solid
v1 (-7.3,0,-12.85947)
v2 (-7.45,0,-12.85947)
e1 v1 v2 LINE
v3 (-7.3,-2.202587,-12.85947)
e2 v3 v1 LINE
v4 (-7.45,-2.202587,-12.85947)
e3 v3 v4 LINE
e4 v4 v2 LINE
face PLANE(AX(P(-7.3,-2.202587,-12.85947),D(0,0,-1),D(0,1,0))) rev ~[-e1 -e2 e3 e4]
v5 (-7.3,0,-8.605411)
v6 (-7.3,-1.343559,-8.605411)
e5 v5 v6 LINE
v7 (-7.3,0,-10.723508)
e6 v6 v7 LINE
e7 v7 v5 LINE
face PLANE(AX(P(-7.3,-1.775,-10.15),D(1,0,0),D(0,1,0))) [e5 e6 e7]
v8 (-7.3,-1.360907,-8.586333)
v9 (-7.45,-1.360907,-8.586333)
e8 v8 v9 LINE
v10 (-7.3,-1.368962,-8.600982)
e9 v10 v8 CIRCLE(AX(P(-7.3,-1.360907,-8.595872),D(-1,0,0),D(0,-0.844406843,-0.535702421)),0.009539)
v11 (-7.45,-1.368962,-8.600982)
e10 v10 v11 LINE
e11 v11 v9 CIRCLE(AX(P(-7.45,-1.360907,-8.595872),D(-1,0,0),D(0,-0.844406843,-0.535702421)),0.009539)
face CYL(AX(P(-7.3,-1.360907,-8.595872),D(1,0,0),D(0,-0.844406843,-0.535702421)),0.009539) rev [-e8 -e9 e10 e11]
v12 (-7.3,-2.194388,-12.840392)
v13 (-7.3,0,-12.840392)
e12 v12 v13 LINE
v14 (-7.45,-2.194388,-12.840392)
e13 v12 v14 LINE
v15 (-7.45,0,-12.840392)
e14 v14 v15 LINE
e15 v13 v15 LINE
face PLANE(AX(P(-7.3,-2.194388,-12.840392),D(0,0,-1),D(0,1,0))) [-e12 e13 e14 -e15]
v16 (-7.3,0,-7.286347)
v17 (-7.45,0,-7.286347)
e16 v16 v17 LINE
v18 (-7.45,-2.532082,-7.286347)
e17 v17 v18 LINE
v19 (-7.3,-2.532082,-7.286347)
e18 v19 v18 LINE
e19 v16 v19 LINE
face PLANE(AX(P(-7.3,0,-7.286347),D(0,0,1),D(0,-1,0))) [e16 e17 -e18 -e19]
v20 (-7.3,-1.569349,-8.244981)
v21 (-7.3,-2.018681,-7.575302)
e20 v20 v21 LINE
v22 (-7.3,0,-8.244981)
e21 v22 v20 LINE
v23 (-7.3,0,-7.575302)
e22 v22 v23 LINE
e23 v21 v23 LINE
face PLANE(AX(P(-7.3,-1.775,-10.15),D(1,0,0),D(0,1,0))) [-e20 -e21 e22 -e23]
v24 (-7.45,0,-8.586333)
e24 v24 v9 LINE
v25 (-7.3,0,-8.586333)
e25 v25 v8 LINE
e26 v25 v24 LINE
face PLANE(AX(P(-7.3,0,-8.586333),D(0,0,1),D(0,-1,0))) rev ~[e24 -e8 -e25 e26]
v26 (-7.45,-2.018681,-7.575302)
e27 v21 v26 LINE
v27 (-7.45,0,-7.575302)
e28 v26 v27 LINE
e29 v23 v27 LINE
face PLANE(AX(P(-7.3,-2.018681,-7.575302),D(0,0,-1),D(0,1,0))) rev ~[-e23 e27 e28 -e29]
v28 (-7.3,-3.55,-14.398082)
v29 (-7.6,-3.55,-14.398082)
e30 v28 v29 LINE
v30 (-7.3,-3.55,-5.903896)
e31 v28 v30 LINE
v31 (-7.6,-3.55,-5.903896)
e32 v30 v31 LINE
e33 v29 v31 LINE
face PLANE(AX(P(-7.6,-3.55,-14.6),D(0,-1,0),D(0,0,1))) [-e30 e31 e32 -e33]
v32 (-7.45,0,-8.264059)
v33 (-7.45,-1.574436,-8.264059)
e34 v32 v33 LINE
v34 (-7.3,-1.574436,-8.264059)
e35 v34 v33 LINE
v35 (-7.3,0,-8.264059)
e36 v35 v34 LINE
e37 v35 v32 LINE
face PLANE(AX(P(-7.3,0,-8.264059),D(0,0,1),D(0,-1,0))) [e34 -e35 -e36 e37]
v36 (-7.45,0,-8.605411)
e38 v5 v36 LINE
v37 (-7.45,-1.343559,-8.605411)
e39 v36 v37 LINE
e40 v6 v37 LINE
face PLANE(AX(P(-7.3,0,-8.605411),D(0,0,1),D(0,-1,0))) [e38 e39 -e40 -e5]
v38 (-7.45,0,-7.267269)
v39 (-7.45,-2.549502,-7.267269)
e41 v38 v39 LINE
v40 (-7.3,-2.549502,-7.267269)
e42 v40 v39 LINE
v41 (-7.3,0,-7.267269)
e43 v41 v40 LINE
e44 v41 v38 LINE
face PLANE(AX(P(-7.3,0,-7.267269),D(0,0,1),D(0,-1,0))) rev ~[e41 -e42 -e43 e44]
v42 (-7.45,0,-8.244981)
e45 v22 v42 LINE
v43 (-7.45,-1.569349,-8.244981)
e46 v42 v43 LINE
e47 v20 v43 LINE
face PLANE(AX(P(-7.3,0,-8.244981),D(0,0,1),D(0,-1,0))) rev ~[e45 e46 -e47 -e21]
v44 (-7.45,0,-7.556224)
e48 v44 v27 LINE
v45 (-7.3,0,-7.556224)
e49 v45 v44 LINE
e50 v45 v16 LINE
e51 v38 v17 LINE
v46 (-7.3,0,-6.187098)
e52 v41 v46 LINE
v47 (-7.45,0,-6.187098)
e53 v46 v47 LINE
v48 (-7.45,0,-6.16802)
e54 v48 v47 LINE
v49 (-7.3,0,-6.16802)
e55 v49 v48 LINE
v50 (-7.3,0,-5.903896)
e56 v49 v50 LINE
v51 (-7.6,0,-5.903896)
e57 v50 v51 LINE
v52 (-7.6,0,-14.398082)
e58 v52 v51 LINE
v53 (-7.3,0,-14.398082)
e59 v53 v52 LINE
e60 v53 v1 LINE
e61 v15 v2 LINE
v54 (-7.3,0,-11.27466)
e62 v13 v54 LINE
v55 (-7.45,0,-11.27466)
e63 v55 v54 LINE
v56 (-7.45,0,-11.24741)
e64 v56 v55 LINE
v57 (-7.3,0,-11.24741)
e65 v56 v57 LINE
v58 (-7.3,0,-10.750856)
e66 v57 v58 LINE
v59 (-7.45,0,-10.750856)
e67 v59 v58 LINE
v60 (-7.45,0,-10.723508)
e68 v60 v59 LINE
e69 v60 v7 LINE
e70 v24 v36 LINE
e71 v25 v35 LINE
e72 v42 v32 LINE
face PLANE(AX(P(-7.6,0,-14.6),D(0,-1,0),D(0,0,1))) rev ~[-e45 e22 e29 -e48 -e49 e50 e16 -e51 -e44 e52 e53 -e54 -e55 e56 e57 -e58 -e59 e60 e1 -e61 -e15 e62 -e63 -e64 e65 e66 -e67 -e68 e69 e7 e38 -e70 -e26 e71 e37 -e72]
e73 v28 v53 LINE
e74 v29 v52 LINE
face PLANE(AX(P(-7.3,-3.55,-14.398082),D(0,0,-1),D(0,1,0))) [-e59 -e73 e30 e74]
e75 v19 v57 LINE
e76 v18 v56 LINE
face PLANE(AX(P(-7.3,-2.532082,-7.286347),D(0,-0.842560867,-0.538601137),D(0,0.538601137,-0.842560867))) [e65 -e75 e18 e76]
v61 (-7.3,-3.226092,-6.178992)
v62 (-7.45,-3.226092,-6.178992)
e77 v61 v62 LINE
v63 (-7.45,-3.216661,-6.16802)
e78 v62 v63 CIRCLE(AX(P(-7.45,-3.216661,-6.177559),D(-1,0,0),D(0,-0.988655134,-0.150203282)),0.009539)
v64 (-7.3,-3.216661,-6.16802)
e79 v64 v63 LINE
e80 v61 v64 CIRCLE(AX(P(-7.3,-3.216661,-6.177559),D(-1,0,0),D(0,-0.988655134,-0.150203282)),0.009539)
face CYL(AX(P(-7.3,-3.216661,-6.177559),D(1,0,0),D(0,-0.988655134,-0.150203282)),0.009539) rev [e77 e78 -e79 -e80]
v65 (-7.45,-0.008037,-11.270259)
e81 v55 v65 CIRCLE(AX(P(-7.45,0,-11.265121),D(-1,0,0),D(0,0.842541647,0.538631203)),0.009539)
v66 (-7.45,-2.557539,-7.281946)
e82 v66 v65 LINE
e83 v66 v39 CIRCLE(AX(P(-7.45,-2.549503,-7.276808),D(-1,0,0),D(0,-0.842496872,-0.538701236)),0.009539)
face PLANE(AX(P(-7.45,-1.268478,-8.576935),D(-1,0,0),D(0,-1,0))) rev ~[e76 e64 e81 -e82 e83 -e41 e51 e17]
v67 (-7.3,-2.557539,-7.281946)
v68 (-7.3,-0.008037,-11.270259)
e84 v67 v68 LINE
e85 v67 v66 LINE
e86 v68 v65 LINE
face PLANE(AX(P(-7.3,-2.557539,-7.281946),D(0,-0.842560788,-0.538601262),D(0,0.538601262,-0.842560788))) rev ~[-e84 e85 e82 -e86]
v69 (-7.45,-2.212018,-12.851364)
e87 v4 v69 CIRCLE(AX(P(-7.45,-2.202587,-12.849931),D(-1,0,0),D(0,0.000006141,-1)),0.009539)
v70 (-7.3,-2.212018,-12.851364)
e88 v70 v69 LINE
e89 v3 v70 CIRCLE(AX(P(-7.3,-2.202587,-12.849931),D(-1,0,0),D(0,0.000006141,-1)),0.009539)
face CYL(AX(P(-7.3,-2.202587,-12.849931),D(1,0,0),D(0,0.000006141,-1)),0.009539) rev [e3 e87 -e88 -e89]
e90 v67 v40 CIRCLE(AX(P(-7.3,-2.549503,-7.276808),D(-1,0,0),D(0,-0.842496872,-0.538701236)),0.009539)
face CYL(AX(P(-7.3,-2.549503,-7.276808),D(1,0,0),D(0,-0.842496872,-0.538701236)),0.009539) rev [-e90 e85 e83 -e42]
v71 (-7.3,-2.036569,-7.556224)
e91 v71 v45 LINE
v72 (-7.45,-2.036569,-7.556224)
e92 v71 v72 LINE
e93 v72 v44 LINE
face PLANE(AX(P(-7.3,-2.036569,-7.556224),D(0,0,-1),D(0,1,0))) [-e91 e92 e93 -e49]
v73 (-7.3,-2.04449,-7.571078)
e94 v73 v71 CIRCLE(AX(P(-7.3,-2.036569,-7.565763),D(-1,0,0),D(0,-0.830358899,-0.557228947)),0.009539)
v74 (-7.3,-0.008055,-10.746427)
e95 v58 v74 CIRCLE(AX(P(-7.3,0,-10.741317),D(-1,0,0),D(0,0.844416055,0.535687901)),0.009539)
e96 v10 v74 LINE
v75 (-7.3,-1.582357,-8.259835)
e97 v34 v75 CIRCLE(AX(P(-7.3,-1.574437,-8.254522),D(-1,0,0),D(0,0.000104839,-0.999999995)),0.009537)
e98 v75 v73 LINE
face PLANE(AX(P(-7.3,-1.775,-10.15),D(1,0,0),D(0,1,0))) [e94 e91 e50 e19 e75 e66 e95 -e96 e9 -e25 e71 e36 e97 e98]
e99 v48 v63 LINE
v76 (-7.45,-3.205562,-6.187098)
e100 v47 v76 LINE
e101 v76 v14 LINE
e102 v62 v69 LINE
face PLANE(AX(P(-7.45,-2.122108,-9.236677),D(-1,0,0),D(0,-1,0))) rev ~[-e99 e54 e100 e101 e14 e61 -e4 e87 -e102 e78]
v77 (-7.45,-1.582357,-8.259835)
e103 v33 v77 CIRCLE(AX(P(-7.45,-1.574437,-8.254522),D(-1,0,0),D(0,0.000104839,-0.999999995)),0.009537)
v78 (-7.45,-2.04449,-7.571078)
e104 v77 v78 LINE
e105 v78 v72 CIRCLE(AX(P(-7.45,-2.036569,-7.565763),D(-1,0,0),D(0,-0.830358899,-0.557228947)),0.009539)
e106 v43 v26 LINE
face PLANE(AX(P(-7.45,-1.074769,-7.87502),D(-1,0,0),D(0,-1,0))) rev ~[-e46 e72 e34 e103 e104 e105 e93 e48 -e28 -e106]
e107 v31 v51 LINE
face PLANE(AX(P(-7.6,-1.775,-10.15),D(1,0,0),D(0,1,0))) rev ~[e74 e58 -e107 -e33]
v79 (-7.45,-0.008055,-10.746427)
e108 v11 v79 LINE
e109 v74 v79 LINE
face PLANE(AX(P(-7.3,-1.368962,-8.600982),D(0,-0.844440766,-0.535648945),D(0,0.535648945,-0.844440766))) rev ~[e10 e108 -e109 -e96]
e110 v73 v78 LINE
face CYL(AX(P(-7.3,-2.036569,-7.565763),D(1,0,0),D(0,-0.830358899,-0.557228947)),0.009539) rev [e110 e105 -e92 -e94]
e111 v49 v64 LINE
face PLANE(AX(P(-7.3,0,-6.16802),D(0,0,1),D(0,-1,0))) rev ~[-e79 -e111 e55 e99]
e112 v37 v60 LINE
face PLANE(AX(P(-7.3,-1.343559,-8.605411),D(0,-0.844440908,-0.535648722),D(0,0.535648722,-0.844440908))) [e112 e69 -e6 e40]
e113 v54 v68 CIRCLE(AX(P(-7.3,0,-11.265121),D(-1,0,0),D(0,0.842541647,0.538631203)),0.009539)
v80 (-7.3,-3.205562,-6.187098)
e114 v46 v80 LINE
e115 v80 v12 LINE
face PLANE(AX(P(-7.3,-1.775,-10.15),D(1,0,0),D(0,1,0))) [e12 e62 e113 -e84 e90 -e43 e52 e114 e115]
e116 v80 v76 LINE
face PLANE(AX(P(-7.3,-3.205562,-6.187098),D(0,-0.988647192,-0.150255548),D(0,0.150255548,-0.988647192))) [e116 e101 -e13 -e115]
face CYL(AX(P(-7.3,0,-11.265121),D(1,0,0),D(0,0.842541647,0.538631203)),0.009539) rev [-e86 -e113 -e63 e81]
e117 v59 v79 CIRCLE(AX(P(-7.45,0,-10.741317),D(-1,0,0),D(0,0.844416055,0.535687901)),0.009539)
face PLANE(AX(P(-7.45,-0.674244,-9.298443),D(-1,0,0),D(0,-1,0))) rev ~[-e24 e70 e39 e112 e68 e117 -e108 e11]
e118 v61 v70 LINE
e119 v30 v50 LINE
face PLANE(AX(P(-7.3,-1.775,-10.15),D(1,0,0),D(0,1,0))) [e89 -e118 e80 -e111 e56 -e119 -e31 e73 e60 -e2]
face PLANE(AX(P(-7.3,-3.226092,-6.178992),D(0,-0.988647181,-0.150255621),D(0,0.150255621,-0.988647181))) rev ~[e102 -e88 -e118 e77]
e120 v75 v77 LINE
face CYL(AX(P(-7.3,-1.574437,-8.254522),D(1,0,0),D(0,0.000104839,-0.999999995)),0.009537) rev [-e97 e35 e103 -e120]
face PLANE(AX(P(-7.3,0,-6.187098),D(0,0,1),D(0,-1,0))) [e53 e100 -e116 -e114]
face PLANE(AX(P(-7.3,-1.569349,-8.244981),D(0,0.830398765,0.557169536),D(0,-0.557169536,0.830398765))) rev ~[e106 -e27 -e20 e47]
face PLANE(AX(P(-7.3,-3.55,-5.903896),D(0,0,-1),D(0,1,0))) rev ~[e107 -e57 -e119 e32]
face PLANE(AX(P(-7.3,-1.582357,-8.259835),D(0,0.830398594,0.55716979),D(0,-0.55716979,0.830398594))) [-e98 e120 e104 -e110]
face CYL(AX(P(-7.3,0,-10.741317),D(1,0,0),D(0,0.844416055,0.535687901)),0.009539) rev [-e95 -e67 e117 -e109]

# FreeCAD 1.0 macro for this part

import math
import FreeCAD as App
import Part
import Sketcher


def add_polygon(sketch, points):
    """Adds a closed chain of lines whose ends are joined by coincident constraints."""
    first, n = sketch.GeometryCount, len(points)
    for a, b in zip(points, points[1:] + points[:1]):
        sketch.addGeometry(Part.LineSegment(App.Vector(*a, 0), App.Vector(*b, 0)), False)
    for i in range(n):
        sketch.addConstraint(Sketcher.Constraint("Coincident", first + i, 2, first + (i + 1) % n, 1))

doc = App.newDocument("Part")
body = doc.addObject("PartDesign::Body", "Body")

# Sketch on YZ plane
sketch1 = body.newObject("Sketcher::SketchObject", "Sketch")
sketch1.AttachmentSupport = (doc.getObject("YZ_Plane"), [""])
sketch1.MapMode = "FlatFace"
sketch1.AttachmentOffset = App.Placement(App.Vector(0, 0, -7.6), App.Rotation())
add_polygon(sketch1, [(-3.55, -5.7), (-3.55, -14.6), (0, -14.6), (0, -5.7)])  # lines 0-3
sketch1.addConstraint([
    Sketcher.Constraint("Vertical", 0),
    Sketcher.Constraint("Horizontal", 1),
    Sketcher.Constraint("Vertical", 2),
    Sketcher.Constraint("Horizontal", 3),
    Sketcher.Constraint("PointOnObject", 1, 2, -2),
    Sketcher.Constraint("DistanceY", 0, 2, 0, 1, 8.9),
    Sketcher.Constraint("DistanceX", 1, 1, 1, 2, 3.55),
    Sketcher.Constraint("DistanceY", 0, 2, -1, 1, 14.6),
])
pad1 = body.newObject("PartDesign::Pad", "Pad")
pad1.Profile = sketch1
pad1.Length = 0.3

# Sketch on YZ plane
sketch2 = body.newObject("Sketcher::SketchObject", "Sketch001")
sketch2.AttachmentSupport = (doc.getObject("YZ_Plane"), [""])
sketch2.MapMode = "FlatFace"
sketch2.AttachmentOffset = App.Placement(App.Vector(0, 0, -7.3), App.Rotation())
sketch2.addGeometry([
    Part.ArcOfCircle(Part.Circle(App.Vector(0, -7.565763, 0), App.Vector(0, 0, 1), 0.009539), math.radians(-90), math.radians(90)),  # 0
    Part.LineSegment(App.Vector(0, -7.556224, 0), App.Vector(-2.036569, -7.556224, 0)),  # 1
    Part.ArcOfCircle(Part.Circle(App.Vector(-2.036569, -7.565763, 0), App.Vector(0, 0, 1), 0.009539), math.radians(89.997459), math.radians(213.864374)),  # 2
    Part.LineSegment(App.Vector(-2.04449, -7.571078, 0), App.Vector(-1.582357, -8.259835, 0)),  # 3
    Part.ArcOfCircle(Part.Circle(App.Vector(-1.574437, -8.254522, 0), App.Vector(0, 0, 1), 0.009537), math.radians(-146.144974), math.radians(-89.993992)),  # 4
    Part.LineSegment(App.Vector(-1.574436, -8.264059, 0), App.Vector(0, -8.264059, 0)),  # 5
    Part.ArcOfCircle(Part.Circle(App.Vector(0, -8.25452, 0), App.Vector(0, 0, 1), 0.009539), math.radians(-90), math.radians(90)),  # 6
    Part.LineSegment(App.Vector(0, -8.244981, 0), App.Vector(-1.569349, -8.244981, 0)),  # 7
    Part.LineSegment(App.Vector(-1.569349, -8.244981, 0), App.Vector(-2.018681, -7.575302, 0)),  # 8
    Part.LineSegment(App.Vector(-2.018681, -7.575302, 0), App.Vector(0, -7.575302, 0)),  # 9
    Part.ArcOfCircle(Part.Circle(App.Vector(0, -12.849931, 0), App.Vector(0, 0, 1), 0.009539), math.radians(-90), math.radians(90)),  # 10
    Part.LineSegment(App.Vector(0, -12.840392, 0), App.Vector(-2.194388, -12.840392, 0)),  # 11
    Part.LineSegment(App.Vector(-2.194388, -12.840392, 0), App.Vector(-3.205562, -6.187098, 0)),  # 12
    Part.LineSegment(App.Vector(-3.205562, -6.187098, 0), App.Vector(0, -6.187098, 0)),  # 13
    Part.ArcOfCircle(Part.Circle(App.Vector(0, -6.177559, 0), App.Vector(0, 0, 1), 0.009539), math.radians(-90), math.radians(90)),  # 14
    Part.LineSegment(App.Vector(0, -6.16802, 0), App.Vector(-3.216661, -6.16802, 0)),  # 15
    Part.ArcOfCircle(Part.Circle(App.Vector(-3.216661, -6.177559, 0), App.Vector(0, 0, 1), 0.009539), math.radians(89.999778), math.radians(188.638709)),  # 16
    Part.LineSegment(App.Vector(-3.226092, -6.178992, 0), App.Vector(-2.212018, -12.851364, 0)),  # 17
    Part.ArcOfCircle(Part.Circle(App.Vector(-2.202587, -12.849931, 0), App.Vector(0, 0, 1), 0.009539), math.radians(-171.358854), math.radians(-89.999646)),  # 18
    Part.LineSegment(App.Vector(-2.202587, -12.85947, 0), App.Vector(0, -12.85947, 0)),  # 19
    Part.LineSegment(App.Vector(0.008055, -10.736207, 0), App.Vector(-1.343559, -8.605411, 0)),  # 20
    Part.LineSegment(App.Vector(-1.343559, -8.605411, 0), App.Vector(0, -8.605411, 0)),  # 21
    Part.ArcOfCircle(Part.Circle(App.Vector(0, -8.595872, 0), App.Vector(0, 0, 1), 0.009539), math.radians(-90), math.radians(90)),  # 22
    Part.LineSegment(App.Vector(0, -8.586333, 0), App.Vector(-1.360907, -8.586333, 0)),  # 23
    Part.ArcOfCircle(Part.Circle(App.Vector(-1.360907, -8.595872, 0), App.Vector(0, 0, 1), 0.009539), math.radians(89.998564), math.radians(212.391562)),  # 24
    Part.LineSegment(App.Vector(-1.368962, -8.600982, 0), App.Vector(-0.008055, -10.746427, 0)),  # 25
    Part.ArcOfCircle(Part.Circle(App.Vector(0, -10.741317, 0), App.Vector(0, 0, 1), 0.009539), math.radians(-147.609425), math.radians(32.390575)),  # 26
    Part.LineSegment(App.Vector(0.008037, -11.259983, 0), App.Vector(-2.532082, -7.286347, 0)),  # 27
    Part.LineSegment(App.Vector(-2.532082, -7.286347, 0), App.Vector(0, -7.286347, 0)),  # 28
    Part.ArcOfCircle(Part.Circle(App.Vector(0, -7.276808, 0), App.Vector(0, 0, 1), 0.009539), math.radians(-90), math.radians(90)),  # 29
    Part.LineSegment(App.Vector(0, -7.267269, 0), App.Vector(-2.549502, -7.267269, 0)),  # 30
    Part.ArcOfCircle(Part.Circle(App.Vector(-2.549503, -7.276808, 0), App.Vector(0, 0, 1), 0.009539), math.radians(89.995255), math.radians(212.59527)),  # 31
    Part.LineSegment(App.Vector(-2.557539, -7.281946, 0), App.Vector(-0.008037, -11.270259, 0)),  # 32
    Part.ArcOfCircle(Part.Circle(App.Vector(0, -11.265121, 0), App.Vector(0, 0, 1), 0.009539), math.radians(-147.409493), math.radians(32.590507)),  # 33
], False)
sketch2.addConstraint([
    Sketcher.Constraint("Tangent", 0, 2, 1, 1),
    Sketcher.Constraint("Coincident", 1, 2, 2, 1),
    Sketcher.Constraint("Coincident", 2, 2, 3, 1),
    Sketcher.Constraint("Coincident", 3, 2, 4, 1),
    Sketcher.Constraint("Coincident", 4, 2, 5, 1),
    Sketcher.Constraint("Tangent", 5, 2, 6, 1),
    Sketcher.Constraint("Tangent", 6, 2, 7, 1),
    Sketcher.Constraint("Coincident", 7, 2, 8, 1),
    Sketcher.Constraint("Coincident", 8, 2, 9, 1),
    Sketcher.Constraint("Tangent", 9, 2, 0, 1),
    Sketcher.Constraint("Tangent", 10, 2, 11, 1),
    Sketcher.Constraint("Coincident", 11, 2, 12, 1),
    Sketcher.Constraint("Coincident", 12, 2, 13, 1),
    Sketcher.Constraint("Tangent", 13, 2, 14, 1),
    Sketcher.Constraint("Tangent", 14, 2, 15, 1),
    Sketcher.Constraint("Coincident", 15, 2, 16, 1),
    Sketcher.Constraint("Coincident", 16, 2, 17, 1),
    Sketcher.Constraint("Coincident", 17, 2, 18, 1),
    Sketcher.Constraint("Coincident", 18, 2, 19, 1),
    Sketcher.Constraint("Tangent", 19, 2, 10, 1),
    Sketcher.Constraint("Coincident", 20, 2, 21, 1),
    Sketcher.Constraint("Tangent", 21, 2, 22, 1),
    Sketcher.Constraint("Tangent", 22, 2, 23, 1),
    Sketcher.Constraint("Coincident", 23, 2, 24, 1),
    Sketcher.Constraint("Coincident", 24, 2, 25, 1),
    Sketcher.Constraint("Coincident", 25, 2, 26, 1),
    Sketcher.Constraint("Coincident", 26, 2, 20, 1),
    Sketcher.Constraint("Coincident", 27, 2, 28, 1),
    Sketcher.Constraint("Tangent", 28, 2, 29, 1),
    Sketcher.Constraint("Tangent", 29, 2, 30, 1),
    Sketcher.Constraint("Coincident", 30, 2, 31, 1),
    Sketcher.Constraint("Coincident", 31, 2, 32, 1),
    Sketcher.Constraint("Coincident", 32, 2, 33, 1),
    Sketcher.Constraint("Coincident", 33, 2, 27, 1),
    Sketcher.Constraint("Horizontal", 1),
    Sketcher.Constraint("Horizontal", 5),
    Sketcher.Constraint("Horizontal", 7),
    Sketcher.Constraint("Horizontal", 9),
    Sketcher.Constraint("Horizontal", 11),
    Sketcher.Constraint("Horizontal", 13),
    Sketcher.Constraint("Horizontal", 15),
    Sketcher.Constraint("Horizontal", 19),
    Sketcher.Constraint("Horizontal", 21),
    Sketcher.Constraint("Horizontal", 23),
    Sketcher.Constraint("Horizontal", 28),
    Sketcher.Constraint("Horizontal", 30),
    Sketcher.Constraint("Equal", 0, 2),
    Sketcher.Constraint("Equal", 2, 4),
    Sketcher.Constraint("Equal", 2, 6),
    Sketcher.Constraint("Equal", 6, 10),
    Sketcher.Constraint("Equal", 10, 14),
    Sketcher.Constraint("Equal", 14, 16),
    Sketcher.Constraint("Equal", 16, 18),
    Sketcher.Constraint("Equal", 18, 22),
    Sketcher.Constraint("Equal", 22, 24),
    Sketcher.Constraint("Equal", 24, 26),
    Sketcher.Constraint("Equal", 26, 29),
    Sketcher.Constraint("Equal", 29, 31),
    Sketcher.Constraint("Equal", 31, 33),
    Sketcher.Constraint("PointOnObject", 0, 3, -2),
    Sketcher.Constraint("PointOnObject", 6, 3, -2),
    Sketcher.Constraint("PointOnObject", 10, 3, -2),
    Sketcher.Constraint("PointOnObject", 14, 3, -2),
    Sketcher.Constraint("PointOnObject", 22, 3, -2),
    Sketcher.Constraint("PointOnObject", 26, 3, -2),
    Sketcher.Constraint("PointOnObject", 29, 3, -2),
    Sketcher.Constraint("PointOnObject", 33, 3, -2),
    Sketcher.Constraint("Parallel", 3, 8),
    Sketcher.Constraint("Parallel", 12, 17),
    Sketcher.Constraint("Parallel", 20, 25),
    Sketcher.Constraint("Parallel", 27, 32),
    Sketcher.Constraint("Vertical", 2, 3, 1, 2),
    Sketcher.Constraint("Vertical", 16, 3, 15, 2),
    Sketcher.Constraint("Vertical", 24, 3, 23, 2),
    Sketcher.Constraint("Vertical", 31, 3, 30, 2),
    Sketcher.Constraint("Radius", 0, 0.009539),
    Sketcher.Constraint("DistanceX", 30, 2, 30, 1, 2.549502),
    Sketcher.Constraint("DistanceX", 1, 2, 1, 1, 2.036569),
    Sketcher.Constraint("DistanceX", 7, 2, 7, 1, 1.569349),
    Sketcher.Constraint("DistanceX", 9, 1, 9, 2, 2.018681),
    Sketcher.Constraint("DistanceX", 11, 2, 11, 1, 2.194388),
    Sketcher.Constraint("DistanceX", 13, 1, 13, 2, 3.205562),
    Sketcher.Constraint("DistanceX", 15, 2, 15, 1, 3.216661),
    Sketcher.Constraint("DistanceX", 21, 1, 21, 2, 1.343559),
    Sketcher.Constraint("DistanceY", 8, 2, -1, 1, 7.575302),
    Sketcher.Constraint("DistanceX", 18, 2, 11, 2, 0.008199),
    Sketcher.Constraint("DistanceX", 3, 2, 20, 2, 0.238798),
    Sketcher.Constraint("DistanceY", 27, 2, 31, 2, 0.004401),
    Sketcher.Constraint("Distance", 3, 0.829429),
    Sketcher.Constraint("Distance", 20, 2.523322),
    Sketcher.Constraint("Distance", 25, 2.54067),
    Sketcher.Constraint("Distance", 27, 4.716141),
    Sketcher.Constraint("Distance", 32, 4.733561),
    Sketcher.Constraint("DistanceX", 5, 1, 5, 2, 1.574436),
    Sketcher.Constraint("DistanceY", 6, 3, -1, 1, 8.25452),
    Sketcher.Constraint("DistanceY", 10, 3, -1, 1, 12.849931),
    Sketcher.Constraint("DistanceY", 14, 3, -1, 1, 6.177559),
    Sketcher.Constraint("DistanceY", 24, 3, -1, 1, 8.595872),
    Sketcher.Constraint("DistanceY", 33, 3, -1, 1, 11.265121),
    Sketcher.Constraint("DistanceY", 16, 2, -1, 1, 6.178992),
    Sketcher.Constraint("DistanceX", 24, 2, -1, 1, 1.368962),
    Sketcher.Constraint("DistanceY", 29, 2, -1, 1, 7.267269),
    Sketcher.Constraint("DistanceY", 25, 2, 26, 3, 0.00511),
    Sketcher.Constraint("Distance", 17, 6.748992),
])
pocket1 = body.newObject("PartDesign::Pocket", "Pocket")
pocket1.Profile = sketch2
pocket1.Length = 0.15

# Sketch on YZ plane
sketch3 = body.newObject("Sketcher::SketchObject", "Sketch002")
sketch3.AttachmentSupport = (doc.getObject("YZ_Plane"), [""])
sketch3.MapMode = "FlatFace"
sketch3.AttachmentOffset = App.Placement(App.Vector(0, 0, -7.3), App.Rotation())
add_polygon(sketch3, [(-3.55, -5.7), (-3.55, -5.903896), (0, -5.903896), (0, -5.7)])  # lines 0-3
add_polygon(sketch3, [(-3.55, -14.398082), (-3.55, -14.6), (0, -14.6), (0, -14.398082)])  # lines 4-7
sketch3.addConstraint([
    Sketcher.Constraint("Vertical", 0),
    Sketcher.Constraint("Horizontal", 1),
    Sketcher.Constraint("Vertical", 2),
    Sketcher.Constraint("Horizontal", 3),
    Sketcher.Constraint("Vertical", 4),
    Sketcher.Constraint("Horizontal", 5),
    Sketcher.Constraint("Vertical", 6),
    Sketcher.Constraint("Horizontal", 7),
    Sketcher.Constraint("PointOnObject", 1, 2, -2),
    Sketcher.Constraint("PointOnObject", 5, 2, -2),
    Sketcher.Constraint("Vertical", 3, 2, 4, 2),
    Sketcher.Constraint("DistanceX", 1, 1, 1, 2, 3.55),
    Sketcher.Constraint("DistanceY", 2, 2, -1, 1, 5.7),
    Sketcher.Constraint("DistanceY", 4, 2, -1, 1, 14.6),
    Sketcher.Constraint("DistanceY", 0, 2, 0, 1, 0.203896),
    Sketcher.Constraint("DistanceY", 4, 2, 4, 1, 0.201918),
])
pocket2 = body.newObject("PartDesign::Pocket", "Pocket001")
pocket2.Profile = sketch3
pocket2.Length = 5

doc.recompute()
